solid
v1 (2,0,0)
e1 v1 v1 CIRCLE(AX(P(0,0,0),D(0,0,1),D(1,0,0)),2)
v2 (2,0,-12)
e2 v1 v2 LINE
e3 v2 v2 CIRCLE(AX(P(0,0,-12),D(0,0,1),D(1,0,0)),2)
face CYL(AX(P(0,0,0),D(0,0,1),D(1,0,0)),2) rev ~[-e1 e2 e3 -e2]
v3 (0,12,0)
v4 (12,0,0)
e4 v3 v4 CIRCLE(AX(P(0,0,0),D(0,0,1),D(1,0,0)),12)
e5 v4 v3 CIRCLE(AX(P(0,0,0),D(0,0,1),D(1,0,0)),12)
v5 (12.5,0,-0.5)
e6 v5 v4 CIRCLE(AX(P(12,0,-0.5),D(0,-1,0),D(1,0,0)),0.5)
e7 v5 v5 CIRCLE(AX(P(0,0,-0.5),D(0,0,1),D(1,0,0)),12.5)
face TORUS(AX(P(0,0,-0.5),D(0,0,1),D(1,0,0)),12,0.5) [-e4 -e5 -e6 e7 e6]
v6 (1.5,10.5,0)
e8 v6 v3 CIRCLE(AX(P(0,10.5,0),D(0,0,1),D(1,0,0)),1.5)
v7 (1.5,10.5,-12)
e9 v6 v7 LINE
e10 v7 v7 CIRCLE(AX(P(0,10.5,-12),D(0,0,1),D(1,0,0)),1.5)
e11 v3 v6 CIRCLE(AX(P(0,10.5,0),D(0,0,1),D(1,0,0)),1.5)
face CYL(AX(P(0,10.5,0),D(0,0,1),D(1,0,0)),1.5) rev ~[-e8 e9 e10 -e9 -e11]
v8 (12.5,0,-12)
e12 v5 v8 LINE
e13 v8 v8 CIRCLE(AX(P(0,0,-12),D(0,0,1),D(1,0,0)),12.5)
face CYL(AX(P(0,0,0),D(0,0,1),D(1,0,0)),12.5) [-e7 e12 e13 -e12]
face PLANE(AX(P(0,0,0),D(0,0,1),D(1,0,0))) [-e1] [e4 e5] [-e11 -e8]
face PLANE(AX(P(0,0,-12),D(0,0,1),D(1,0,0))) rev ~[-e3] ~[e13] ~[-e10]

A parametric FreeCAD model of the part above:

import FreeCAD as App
import Part
import Sketcher


def edges_at(feature, points):
    """Names of the edges that pass closest to the given points."""
    edges = feature.Shape.Edges
    near = lambda p: min(range(len(edges)), key=lambda i: edges[i].distToShape(Part.Vertex(*p))[0])
    return sorted({f"Edge{near(p) + 1}" for p in points})

doc = App.newDocument("Part")
body = doc.addObject("PartDesign::Body", "Body")

sketch1 = doc.addObject("Sketcher::SketchObject", "Sketch")
body.addObject(sketch1)
sketch1.AttachmentSupport = (doc.XY_Plane, [""])
sketch1.MapMode = "FlatFace"
sketch1.addGeometry(Part.Circle(App.Vector(0, 0, 0), App.Vector(0, 0, 1), 12.5), False)
sketch1.addGeometry(Part.Circle(App.Vector(0, 0, 0), App.Vector(0, 0, 1), 2), False)
sketch1.addConstraint(Sketcher.Constraint("Coincident", 0, 3, -1, 1))
sketch1.addConstraint(Sketcher.Constraint("Coincident", 1, 3, -1, 1))
sketch1.addConstraint(Sketcher.Constraint("Diameter", 0, 25.0))
sketch1.addConstraint(Sketcher.Constraint("Diameter", 1, 4.0))
pad1 = doc.addObject("PartDesign::Pad", "Pad")
body.addObject(pad1)
pad1.Profile = sketch1
pad1.Length = 12
pad1.Reversed = True
doc.recompute()

fillet = doc.addObject("PartDesign::Fillet", "Fillet")
body.addObject(fillet)
fillet.Base = (pad1, edges_at(pad1, [(-12.5, 0, 0)]))
fillet.Radius = 0.5

sketch2 = doc.addObject("Sketcher::SketchObject", "Sketch001")
body.addObject(sketch2)
sketch2.AttachmentSupport = (doc.XY_Plane, [""])
sketch2.MapMode = "FlatFace"
sketch2.addGeometry(Part.Circle(App.Vector(0, 10.5, 0), App.Vector(0, 0, 1), 1.5), False)
sketch2.addConstraint(Sketcher.Constraint("PointOnObject", 0, 3, -2))
sketch2.addConstraint(Sketcher.Constraint("Diameter", 0, 3.0))
sketch2.addConstraint(Sketcher.Constraint("DistanceY", -1, 1, 0, 3, 10.5))
pocket1 = doc.addObject("PartDesign::Pocket", "Pocket")
body.addObject(pocket1)
pocket1.Profile = sketch2
pocket1.Length = 12

doc.recompute()
